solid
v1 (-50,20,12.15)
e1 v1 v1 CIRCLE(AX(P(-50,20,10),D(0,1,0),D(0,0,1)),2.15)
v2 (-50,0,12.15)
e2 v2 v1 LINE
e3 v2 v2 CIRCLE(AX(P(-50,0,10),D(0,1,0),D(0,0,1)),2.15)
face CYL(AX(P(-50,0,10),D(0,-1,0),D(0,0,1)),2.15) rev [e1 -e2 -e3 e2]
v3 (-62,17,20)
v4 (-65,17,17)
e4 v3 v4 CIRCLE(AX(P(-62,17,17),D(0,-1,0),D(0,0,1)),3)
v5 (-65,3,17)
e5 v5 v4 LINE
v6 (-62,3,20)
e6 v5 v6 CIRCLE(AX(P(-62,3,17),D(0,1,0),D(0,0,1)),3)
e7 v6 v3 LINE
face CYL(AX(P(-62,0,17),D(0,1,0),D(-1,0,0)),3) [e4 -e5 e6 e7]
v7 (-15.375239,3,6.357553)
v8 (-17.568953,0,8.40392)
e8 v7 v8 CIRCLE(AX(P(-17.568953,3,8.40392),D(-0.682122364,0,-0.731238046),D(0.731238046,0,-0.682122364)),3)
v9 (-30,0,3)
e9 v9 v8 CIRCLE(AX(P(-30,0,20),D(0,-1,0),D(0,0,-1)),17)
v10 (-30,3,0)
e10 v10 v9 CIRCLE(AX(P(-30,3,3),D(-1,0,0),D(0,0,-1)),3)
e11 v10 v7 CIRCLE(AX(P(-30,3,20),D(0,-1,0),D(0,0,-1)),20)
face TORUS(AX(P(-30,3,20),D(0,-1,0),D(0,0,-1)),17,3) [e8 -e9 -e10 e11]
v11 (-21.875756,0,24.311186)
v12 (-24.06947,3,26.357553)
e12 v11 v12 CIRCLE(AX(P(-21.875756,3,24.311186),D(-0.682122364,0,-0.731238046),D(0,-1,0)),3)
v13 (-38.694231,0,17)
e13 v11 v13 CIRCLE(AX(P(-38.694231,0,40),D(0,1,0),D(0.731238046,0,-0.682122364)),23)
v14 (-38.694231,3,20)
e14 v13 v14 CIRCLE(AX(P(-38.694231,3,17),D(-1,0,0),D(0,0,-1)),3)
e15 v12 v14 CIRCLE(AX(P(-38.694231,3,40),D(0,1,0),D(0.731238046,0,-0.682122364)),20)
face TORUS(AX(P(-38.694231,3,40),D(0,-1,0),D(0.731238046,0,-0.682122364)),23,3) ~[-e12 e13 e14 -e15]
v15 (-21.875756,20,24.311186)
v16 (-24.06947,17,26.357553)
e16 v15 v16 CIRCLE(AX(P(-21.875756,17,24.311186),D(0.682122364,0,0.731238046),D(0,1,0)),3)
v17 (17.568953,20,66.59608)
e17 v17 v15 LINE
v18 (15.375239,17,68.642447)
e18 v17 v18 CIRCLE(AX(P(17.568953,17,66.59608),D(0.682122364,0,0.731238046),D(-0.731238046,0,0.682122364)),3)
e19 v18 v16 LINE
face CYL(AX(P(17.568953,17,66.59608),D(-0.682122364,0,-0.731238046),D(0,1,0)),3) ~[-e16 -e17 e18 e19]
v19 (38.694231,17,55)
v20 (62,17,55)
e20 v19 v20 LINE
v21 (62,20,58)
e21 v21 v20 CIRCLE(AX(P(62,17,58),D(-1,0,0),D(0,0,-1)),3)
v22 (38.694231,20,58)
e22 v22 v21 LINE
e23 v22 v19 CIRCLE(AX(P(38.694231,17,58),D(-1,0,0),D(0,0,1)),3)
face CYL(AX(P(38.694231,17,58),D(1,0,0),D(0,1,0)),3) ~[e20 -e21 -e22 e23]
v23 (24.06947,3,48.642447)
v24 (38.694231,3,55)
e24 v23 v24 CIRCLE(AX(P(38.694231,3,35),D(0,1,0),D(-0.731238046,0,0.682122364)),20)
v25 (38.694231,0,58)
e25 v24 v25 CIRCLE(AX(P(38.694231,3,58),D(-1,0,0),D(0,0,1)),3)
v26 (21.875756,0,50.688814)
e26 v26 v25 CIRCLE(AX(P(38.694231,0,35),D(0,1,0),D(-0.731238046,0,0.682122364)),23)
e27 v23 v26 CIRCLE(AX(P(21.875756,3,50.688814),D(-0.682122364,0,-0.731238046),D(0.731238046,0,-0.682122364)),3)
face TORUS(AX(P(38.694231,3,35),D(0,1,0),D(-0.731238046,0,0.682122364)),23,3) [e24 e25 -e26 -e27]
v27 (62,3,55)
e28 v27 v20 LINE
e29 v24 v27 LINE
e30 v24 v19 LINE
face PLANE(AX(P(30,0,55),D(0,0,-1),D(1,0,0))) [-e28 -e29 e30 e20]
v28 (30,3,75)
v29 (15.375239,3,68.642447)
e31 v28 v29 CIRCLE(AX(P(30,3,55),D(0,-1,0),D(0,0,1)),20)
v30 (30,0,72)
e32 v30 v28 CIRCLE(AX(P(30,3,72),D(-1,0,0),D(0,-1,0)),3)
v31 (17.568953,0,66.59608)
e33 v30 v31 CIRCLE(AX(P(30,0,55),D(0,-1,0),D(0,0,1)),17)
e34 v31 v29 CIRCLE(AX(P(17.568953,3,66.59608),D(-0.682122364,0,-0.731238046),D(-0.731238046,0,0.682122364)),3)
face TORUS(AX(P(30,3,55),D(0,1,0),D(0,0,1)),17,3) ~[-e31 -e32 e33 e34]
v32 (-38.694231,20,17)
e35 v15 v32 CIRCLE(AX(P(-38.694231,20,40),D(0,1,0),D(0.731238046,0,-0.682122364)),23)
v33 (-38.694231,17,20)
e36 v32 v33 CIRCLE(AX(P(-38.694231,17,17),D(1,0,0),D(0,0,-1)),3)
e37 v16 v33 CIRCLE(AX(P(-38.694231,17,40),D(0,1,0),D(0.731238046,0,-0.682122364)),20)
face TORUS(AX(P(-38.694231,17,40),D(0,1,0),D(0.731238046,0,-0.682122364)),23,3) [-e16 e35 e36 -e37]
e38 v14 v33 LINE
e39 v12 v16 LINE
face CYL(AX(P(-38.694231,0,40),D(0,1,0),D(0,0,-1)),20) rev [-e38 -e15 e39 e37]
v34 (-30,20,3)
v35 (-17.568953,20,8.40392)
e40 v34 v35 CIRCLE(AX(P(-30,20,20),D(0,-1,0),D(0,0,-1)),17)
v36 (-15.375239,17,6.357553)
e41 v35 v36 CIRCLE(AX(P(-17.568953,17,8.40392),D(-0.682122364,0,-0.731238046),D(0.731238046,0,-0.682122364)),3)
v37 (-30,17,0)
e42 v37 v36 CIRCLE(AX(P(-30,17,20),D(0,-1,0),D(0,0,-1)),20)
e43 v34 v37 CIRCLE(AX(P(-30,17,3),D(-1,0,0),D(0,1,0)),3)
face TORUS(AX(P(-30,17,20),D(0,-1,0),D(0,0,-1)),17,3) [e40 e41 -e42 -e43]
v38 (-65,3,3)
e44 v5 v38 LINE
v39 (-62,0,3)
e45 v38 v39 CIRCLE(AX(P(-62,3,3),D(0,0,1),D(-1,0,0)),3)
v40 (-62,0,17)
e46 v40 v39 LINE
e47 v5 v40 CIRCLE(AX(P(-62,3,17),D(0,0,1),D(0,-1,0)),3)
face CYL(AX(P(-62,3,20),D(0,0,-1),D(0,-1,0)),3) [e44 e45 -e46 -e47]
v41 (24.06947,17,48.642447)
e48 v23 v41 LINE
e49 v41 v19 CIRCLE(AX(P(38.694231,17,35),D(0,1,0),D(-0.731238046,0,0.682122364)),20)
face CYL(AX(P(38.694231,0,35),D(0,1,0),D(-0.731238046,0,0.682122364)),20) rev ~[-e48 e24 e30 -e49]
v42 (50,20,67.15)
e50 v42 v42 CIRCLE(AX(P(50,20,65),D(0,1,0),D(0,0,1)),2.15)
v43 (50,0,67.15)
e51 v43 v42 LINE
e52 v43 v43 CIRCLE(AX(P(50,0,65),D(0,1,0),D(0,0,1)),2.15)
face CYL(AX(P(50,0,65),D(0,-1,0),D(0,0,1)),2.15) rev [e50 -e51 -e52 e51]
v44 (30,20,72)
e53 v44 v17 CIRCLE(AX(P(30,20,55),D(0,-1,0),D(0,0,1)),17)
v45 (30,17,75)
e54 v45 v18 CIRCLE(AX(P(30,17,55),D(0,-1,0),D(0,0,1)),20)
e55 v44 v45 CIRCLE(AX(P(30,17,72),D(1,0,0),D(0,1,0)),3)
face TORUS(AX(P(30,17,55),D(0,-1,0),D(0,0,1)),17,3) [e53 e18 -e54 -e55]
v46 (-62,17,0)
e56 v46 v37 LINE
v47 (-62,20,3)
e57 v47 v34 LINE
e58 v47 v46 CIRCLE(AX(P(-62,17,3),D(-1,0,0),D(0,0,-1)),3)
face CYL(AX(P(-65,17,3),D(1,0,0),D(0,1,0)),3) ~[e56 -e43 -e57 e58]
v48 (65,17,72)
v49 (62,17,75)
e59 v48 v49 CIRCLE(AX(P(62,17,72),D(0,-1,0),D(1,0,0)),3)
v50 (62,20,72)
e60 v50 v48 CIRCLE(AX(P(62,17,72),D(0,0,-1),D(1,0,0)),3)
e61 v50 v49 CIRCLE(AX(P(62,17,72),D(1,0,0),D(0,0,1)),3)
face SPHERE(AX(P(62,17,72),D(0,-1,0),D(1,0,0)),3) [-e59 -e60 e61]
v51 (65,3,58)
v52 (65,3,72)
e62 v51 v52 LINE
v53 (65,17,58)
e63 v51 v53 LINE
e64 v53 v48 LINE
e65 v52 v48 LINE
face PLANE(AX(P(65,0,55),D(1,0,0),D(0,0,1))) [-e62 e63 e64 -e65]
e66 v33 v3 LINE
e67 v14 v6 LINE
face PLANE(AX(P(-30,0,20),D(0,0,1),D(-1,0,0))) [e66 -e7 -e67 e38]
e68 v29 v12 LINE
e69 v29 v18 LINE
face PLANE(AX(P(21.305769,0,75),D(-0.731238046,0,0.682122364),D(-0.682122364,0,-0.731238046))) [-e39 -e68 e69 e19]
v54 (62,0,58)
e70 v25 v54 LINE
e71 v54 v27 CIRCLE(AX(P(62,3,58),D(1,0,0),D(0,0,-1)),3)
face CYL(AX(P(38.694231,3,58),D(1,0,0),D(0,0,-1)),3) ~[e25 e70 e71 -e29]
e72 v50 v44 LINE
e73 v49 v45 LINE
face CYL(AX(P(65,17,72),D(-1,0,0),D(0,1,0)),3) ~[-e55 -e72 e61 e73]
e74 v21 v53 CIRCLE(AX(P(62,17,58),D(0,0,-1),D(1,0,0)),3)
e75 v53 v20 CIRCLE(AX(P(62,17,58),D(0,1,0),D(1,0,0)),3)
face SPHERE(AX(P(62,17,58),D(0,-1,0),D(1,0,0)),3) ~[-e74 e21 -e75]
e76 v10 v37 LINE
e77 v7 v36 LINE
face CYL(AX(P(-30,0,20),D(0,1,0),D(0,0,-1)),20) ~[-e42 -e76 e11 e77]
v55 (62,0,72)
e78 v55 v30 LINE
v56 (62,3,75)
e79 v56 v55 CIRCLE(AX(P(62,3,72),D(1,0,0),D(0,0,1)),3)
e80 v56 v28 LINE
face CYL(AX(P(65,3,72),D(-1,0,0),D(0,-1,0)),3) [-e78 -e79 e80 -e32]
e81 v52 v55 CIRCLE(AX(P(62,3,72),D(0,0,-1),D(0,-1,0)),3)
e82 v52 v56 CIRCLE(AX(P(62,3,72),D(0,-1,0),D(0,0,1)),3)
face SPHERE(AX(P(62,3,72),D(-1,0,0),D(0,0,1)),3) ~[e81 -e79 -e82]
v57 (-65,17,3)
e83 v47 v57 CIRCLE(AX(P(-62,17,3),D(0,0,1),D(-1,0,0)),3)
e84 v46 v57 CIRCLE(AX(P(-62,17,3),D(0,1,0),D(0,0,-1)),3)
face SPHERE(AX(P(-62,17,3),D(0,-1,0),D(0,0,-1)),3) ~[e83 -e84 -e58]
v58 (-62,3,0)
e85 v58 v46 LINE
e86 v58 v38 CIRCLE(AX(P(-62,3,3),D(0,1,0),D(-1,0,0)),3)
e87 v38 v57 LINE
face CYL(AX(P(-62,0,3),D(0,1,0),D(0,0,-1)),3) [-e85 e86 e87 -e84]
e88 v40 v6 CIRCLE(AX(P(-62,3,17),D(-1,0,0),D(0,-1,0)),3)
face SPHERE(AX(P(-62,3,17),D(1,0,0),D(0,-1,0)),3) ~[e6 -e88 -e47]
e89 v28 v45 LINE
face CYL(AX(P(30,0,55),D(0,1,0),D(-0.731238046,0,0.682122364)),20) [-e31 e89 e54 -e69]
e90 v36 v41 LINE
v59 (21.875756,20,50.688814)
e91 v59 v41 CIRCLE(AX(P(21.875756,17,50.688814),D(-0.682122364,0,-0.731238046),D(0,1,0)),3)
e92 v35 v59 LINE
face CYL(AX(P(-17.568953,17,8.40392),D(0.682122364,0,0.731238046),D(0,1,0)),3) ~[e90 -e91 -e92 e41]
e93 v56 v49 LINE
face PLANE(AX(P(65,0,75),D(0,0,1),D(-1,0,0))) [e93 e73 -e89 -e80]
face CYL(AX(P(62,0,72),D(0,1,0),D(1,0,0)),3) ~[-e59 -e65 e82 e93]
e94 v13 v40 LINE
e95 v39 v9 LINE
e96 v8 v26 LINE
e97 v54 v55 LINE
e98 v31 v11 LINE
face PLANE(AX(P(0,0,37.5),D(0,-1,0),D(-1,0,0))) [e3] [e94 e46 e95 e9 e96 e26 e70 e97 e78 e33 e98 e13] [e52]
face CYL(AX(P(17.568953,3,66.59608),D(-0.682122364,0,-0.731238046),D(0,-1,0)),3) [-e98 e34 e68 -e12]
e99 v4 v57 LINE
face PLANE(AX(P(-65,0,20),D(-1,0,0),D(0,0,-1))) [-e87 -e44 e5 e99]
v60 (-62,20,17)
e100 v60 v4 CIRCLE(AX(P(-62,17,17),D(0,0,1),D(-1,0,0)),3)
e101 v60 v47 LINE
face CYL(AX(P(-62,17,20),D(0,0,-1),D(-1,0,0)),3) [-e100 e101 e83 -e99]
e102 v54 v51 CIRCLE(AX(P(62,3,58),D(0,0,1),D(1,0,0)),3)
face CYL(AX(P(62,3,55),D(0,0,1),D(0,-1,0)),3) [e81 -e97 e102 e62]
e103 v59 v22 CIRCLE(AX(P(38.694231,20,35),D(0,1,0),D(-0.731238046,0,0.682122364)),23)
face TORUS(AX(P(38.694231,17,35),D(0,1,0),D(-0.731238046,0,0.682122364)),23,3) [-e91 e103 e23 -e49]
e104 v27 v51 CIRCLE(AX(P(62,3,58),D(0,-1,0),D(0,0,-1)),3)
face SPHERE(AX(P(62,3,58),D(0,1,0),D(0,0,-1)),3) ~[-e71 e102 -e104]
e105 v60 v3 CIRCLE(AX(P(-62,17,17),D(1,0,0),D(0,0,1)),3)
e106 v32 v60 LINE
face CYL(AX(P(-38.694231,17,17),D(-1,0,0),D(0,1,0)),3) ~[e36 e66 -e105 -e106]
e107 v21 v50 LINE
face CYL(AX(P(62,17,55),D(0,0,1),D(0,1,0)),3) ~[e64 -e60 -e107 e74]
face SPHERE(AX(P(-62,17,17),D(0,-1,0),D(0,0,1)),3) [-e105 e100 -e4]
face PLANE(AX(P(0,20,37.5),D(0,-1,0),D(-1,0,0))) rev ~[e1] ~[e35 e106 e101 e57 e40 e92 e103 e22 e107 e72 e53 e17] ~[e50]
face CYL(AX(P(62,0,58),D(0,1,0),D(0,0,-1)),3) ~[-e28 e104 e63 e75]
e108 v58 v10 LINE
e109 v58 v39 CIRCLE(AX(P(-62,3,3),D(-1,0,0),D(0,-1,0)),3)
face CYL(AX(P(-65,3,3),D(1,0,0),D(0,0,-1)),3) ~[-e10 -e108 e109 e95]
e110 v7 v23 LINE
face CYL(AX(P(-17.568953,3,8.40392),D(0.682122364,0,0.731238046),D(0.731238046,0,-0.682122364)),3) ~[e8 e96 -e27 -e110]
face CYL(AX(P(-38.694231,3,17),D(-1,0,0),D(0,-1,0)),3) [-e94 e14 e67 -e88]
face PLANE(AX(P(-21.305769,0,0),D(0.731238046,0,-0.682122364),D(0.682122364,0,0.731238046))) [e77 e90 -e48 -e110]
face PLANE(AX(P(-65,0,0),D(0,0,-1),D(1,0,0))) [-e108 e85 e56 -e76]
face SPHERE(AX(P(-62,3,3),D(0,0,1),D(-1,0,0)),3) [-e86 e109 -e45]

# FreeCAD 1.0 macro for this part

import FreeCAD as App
import Part
import Sketcher
Q = App.Units.Quantity


def edges_at(feature, points):
    """Names of the edges that pass closest to the given points."""
    edges = feature.Shape.Edges
    near = lambda p: min(range(len(edges)), key=lambda i: edges[i].distToShape(Part.Vertex(*p))[0])
    return sorted({f"Edge{near(p) + 1}" for p in points})

doc = App.newDocument("Part")
body = doc.addObject("PartDesign::Body", "Body")

# Sketch on XZ plane
sketch1 = body.newObject("Sketcher::SketchObject", "Sketch")
sketch1.AttachmentSupport = (doc.getObject("XZ_Plane"), [""])
sketch1.MapMode = "FlatFace"
sketch1.addGeometry(Part.LineSegment(App.Vector(-21.3, 0, 0), App.Vector(-65, 0, 0)), False)
sketch1.addGeometry(Part.LineSegment(App.Vector(-65, 0, 0), App.Vector(-65, 20, 0)), False)
sketch1.addGeometry(Part.LineSegment(App.Vector(-65, 20, 0), App.Vector(-30, 20, 0)), False)
sketch1.addGeometry(Part.LineSegment(App.Vector(-30, 20, 0), App.Vector(21.3, 75, 0)), False)
sketch1.addGeometry(Part.LineSegment(App.Vector(21.3, 75, 0), App.Vector(65, 75, 0)), False)
sketch1.addGeometry(Part.LineSegment(App.Vector(65, 75, 0), App.Vector(65, 55, 0)), False)
sketch1.addGeometry(Part.LineSegment(App.Vector(65, 55, 0), App.Vector(30, 55, 0)), False)
sketch1.addGeometry(Part.LineSegment(App.Vector(30, 55, 0), App.Vector(-21.3, 0, 0)), False)
sketch1.addGeometry(Part.Circle(App.Vector(50, 65, 0), App.Vector(0, 0, 1), 2.1), False)
sketch1.addGeometry(Part.Circle(App.Vector(-50, 10, 0), App.Vector(0, 0, 1), 2.1), False)
sketch1.addConstraint(Sketcher.Constraint("Coincident", 0, 2, 1, 1))
sketch1.addConstraint(Sketcher.Constraint("Coincident", 1, 2, 2, 1))
sketch1.addConstraint(Sketcher.Constraint("Coincident", 2, 2, 3, 1))
sketch1.addConstraint(Sketcher.Constraint("Coincident", 3, 2, 4, 1))
sketch1.addConstraint(Sketcher.Constraint("Coincident", 4, 2, 5, 1))
sketch1.addConstraint(Sketcher.Constraint("Coincident", 5, 2, 6, 1))
sketch1.addConstraint(Sketcher.Constraint("Coincident", 6, 2, 7, 1))
sketch1.addConstraint(Sketcher.Constraint("Coincident", 7, 2, 0, 1))
sketch1.addConstraint(Sketcher.Constraint("Horizontal", 0))
sketch1.addConstraint(Sketcher.Constraint("Vertical", 1))
sketch1.addConstraint(Sketcher.Constraint("Horizontal", 2))
sketch1.addConstraint(Sketcher.Constraint("Horizontal", 4))
sketch1.addConstraint(Sketcher.Constraint("Vertical", 5))
sketch1.addConstraint(Sketcher.Constraint("Horizontal", 6))
sketch1.addConstraint(Sketcher.Constraint("Equal", 8, 9))
sketch1.addConstraint(Sketcher.Constraint("PointOnObject", 0, 2, -1))
sketch1.addConstraint(Sketcher.Constraint("Parallel", 3, 7))
sketch1.addConstraint(Sketcher.Constraint("Equal", 0, 4))
sketch1.addConstraint(Sketcher.Constraint("Equal", 2, 6))
sketch1.addConstraint(Sketcher.Constraint("Diameter", 8, Q("4.3 mm")))
sketch1.addConstraint(Sketcher.Constraint("DistanceX", 2, 1, 2, 2, Q("35 mm")))
sketch1.addConstraint(Sketcher.Constraint("DistanceY", 1, 1, 1, 2, Q("20 mm")))
sketch1.addConstraint(Sketcher.Constraint("DistanceX", -1, 1, 8, 3, Q("50 mm")))
sketch1.addConstraint(Sketcher.Constraint("DistanceY", -1, 1, 8, 3, Q("65 mm")))
sketch1.addConstraint(Sketcher.Constraint("DistanceX", 9, 3, -1, 1, Q("50 mm")))
sketch1.addConstraint(Sketcher.Constraint("DistanceY", -1, 1, 9, 3, Q("10 mm")))
sketch1.addConstraint(Sketcher.Constraint("DistanceX", 0, 2, -1, 1, Q("65 mm")))
sketch1.addConstraint(Sketcher.Constraint("DistanceY", -1, 1, 3, 2, Q("75 mm")))
sketch1.addConstraint(Sketcher.Constraint("DistanceX", -1, 1, 4, 2, Q("65 mm")))
sketch1.addConstraint(Sketcher.Constraint("DistanceX", 0, 2, 0, 1, Q("43.694231 mm")))
pad1 = body.newObject("PartDesign::Pad", "Pad")
pad1.Profile = sketch1
pad1.Length = 20
pad1.Reversed = True
doc.recompute()

fillet = body.newObject("PartDesign::Fillet", "Fillet")
fillet.Base = (pad1, edges_at(pad1, [
    (-21.306, 10, 0),
    (30, 10, 55),
    (21.306, 10, 75),
    (-30, 10, 20),
]))
fillet.Radius = 20
doc.recompute()

fillet2 = body.newObject("PartDesign::Fillet", "Fillet001")
fillet2.Base = (fillet, edges_at(fillet, [
    (-51.847, 0, 20),
    (-65, 0, 10),
    (-65, 10, 0),
    (65, 10, 55),
    (65, 10, 75),
    (-65, 10, 20),
    (65, 20, 65),
    (51.847, 20, 55),
    (47.5, 0, 75),
    (47.5, 20, 75),
    (-47.5, 0, 0),
    (4.347, 0, 27.5),
    (-4.347, 0, 47.5),
    (-22.027, 0, 1.658),
    (22.027, 0, 73.342),
    (-4.347, 20, 47.5),
    (4.347, 20, 27.5),
    (-47.5, 20, 0),
    (-22.027, 20, 1.658),
    (22.027, 20, 73.342),
    (30.721, 0, 53.342),
    (30.721, 20, 53.342),
    (-30.721, 0, 21.658),
    (-30.721, 20, 21.658),
    (-65, 20, 10),
    (-51.847, 20, 20),
    (51.847, 0, 55),
    (65, 0, 65),
]))
fillet2.Radius = 3

doc.recompute()
